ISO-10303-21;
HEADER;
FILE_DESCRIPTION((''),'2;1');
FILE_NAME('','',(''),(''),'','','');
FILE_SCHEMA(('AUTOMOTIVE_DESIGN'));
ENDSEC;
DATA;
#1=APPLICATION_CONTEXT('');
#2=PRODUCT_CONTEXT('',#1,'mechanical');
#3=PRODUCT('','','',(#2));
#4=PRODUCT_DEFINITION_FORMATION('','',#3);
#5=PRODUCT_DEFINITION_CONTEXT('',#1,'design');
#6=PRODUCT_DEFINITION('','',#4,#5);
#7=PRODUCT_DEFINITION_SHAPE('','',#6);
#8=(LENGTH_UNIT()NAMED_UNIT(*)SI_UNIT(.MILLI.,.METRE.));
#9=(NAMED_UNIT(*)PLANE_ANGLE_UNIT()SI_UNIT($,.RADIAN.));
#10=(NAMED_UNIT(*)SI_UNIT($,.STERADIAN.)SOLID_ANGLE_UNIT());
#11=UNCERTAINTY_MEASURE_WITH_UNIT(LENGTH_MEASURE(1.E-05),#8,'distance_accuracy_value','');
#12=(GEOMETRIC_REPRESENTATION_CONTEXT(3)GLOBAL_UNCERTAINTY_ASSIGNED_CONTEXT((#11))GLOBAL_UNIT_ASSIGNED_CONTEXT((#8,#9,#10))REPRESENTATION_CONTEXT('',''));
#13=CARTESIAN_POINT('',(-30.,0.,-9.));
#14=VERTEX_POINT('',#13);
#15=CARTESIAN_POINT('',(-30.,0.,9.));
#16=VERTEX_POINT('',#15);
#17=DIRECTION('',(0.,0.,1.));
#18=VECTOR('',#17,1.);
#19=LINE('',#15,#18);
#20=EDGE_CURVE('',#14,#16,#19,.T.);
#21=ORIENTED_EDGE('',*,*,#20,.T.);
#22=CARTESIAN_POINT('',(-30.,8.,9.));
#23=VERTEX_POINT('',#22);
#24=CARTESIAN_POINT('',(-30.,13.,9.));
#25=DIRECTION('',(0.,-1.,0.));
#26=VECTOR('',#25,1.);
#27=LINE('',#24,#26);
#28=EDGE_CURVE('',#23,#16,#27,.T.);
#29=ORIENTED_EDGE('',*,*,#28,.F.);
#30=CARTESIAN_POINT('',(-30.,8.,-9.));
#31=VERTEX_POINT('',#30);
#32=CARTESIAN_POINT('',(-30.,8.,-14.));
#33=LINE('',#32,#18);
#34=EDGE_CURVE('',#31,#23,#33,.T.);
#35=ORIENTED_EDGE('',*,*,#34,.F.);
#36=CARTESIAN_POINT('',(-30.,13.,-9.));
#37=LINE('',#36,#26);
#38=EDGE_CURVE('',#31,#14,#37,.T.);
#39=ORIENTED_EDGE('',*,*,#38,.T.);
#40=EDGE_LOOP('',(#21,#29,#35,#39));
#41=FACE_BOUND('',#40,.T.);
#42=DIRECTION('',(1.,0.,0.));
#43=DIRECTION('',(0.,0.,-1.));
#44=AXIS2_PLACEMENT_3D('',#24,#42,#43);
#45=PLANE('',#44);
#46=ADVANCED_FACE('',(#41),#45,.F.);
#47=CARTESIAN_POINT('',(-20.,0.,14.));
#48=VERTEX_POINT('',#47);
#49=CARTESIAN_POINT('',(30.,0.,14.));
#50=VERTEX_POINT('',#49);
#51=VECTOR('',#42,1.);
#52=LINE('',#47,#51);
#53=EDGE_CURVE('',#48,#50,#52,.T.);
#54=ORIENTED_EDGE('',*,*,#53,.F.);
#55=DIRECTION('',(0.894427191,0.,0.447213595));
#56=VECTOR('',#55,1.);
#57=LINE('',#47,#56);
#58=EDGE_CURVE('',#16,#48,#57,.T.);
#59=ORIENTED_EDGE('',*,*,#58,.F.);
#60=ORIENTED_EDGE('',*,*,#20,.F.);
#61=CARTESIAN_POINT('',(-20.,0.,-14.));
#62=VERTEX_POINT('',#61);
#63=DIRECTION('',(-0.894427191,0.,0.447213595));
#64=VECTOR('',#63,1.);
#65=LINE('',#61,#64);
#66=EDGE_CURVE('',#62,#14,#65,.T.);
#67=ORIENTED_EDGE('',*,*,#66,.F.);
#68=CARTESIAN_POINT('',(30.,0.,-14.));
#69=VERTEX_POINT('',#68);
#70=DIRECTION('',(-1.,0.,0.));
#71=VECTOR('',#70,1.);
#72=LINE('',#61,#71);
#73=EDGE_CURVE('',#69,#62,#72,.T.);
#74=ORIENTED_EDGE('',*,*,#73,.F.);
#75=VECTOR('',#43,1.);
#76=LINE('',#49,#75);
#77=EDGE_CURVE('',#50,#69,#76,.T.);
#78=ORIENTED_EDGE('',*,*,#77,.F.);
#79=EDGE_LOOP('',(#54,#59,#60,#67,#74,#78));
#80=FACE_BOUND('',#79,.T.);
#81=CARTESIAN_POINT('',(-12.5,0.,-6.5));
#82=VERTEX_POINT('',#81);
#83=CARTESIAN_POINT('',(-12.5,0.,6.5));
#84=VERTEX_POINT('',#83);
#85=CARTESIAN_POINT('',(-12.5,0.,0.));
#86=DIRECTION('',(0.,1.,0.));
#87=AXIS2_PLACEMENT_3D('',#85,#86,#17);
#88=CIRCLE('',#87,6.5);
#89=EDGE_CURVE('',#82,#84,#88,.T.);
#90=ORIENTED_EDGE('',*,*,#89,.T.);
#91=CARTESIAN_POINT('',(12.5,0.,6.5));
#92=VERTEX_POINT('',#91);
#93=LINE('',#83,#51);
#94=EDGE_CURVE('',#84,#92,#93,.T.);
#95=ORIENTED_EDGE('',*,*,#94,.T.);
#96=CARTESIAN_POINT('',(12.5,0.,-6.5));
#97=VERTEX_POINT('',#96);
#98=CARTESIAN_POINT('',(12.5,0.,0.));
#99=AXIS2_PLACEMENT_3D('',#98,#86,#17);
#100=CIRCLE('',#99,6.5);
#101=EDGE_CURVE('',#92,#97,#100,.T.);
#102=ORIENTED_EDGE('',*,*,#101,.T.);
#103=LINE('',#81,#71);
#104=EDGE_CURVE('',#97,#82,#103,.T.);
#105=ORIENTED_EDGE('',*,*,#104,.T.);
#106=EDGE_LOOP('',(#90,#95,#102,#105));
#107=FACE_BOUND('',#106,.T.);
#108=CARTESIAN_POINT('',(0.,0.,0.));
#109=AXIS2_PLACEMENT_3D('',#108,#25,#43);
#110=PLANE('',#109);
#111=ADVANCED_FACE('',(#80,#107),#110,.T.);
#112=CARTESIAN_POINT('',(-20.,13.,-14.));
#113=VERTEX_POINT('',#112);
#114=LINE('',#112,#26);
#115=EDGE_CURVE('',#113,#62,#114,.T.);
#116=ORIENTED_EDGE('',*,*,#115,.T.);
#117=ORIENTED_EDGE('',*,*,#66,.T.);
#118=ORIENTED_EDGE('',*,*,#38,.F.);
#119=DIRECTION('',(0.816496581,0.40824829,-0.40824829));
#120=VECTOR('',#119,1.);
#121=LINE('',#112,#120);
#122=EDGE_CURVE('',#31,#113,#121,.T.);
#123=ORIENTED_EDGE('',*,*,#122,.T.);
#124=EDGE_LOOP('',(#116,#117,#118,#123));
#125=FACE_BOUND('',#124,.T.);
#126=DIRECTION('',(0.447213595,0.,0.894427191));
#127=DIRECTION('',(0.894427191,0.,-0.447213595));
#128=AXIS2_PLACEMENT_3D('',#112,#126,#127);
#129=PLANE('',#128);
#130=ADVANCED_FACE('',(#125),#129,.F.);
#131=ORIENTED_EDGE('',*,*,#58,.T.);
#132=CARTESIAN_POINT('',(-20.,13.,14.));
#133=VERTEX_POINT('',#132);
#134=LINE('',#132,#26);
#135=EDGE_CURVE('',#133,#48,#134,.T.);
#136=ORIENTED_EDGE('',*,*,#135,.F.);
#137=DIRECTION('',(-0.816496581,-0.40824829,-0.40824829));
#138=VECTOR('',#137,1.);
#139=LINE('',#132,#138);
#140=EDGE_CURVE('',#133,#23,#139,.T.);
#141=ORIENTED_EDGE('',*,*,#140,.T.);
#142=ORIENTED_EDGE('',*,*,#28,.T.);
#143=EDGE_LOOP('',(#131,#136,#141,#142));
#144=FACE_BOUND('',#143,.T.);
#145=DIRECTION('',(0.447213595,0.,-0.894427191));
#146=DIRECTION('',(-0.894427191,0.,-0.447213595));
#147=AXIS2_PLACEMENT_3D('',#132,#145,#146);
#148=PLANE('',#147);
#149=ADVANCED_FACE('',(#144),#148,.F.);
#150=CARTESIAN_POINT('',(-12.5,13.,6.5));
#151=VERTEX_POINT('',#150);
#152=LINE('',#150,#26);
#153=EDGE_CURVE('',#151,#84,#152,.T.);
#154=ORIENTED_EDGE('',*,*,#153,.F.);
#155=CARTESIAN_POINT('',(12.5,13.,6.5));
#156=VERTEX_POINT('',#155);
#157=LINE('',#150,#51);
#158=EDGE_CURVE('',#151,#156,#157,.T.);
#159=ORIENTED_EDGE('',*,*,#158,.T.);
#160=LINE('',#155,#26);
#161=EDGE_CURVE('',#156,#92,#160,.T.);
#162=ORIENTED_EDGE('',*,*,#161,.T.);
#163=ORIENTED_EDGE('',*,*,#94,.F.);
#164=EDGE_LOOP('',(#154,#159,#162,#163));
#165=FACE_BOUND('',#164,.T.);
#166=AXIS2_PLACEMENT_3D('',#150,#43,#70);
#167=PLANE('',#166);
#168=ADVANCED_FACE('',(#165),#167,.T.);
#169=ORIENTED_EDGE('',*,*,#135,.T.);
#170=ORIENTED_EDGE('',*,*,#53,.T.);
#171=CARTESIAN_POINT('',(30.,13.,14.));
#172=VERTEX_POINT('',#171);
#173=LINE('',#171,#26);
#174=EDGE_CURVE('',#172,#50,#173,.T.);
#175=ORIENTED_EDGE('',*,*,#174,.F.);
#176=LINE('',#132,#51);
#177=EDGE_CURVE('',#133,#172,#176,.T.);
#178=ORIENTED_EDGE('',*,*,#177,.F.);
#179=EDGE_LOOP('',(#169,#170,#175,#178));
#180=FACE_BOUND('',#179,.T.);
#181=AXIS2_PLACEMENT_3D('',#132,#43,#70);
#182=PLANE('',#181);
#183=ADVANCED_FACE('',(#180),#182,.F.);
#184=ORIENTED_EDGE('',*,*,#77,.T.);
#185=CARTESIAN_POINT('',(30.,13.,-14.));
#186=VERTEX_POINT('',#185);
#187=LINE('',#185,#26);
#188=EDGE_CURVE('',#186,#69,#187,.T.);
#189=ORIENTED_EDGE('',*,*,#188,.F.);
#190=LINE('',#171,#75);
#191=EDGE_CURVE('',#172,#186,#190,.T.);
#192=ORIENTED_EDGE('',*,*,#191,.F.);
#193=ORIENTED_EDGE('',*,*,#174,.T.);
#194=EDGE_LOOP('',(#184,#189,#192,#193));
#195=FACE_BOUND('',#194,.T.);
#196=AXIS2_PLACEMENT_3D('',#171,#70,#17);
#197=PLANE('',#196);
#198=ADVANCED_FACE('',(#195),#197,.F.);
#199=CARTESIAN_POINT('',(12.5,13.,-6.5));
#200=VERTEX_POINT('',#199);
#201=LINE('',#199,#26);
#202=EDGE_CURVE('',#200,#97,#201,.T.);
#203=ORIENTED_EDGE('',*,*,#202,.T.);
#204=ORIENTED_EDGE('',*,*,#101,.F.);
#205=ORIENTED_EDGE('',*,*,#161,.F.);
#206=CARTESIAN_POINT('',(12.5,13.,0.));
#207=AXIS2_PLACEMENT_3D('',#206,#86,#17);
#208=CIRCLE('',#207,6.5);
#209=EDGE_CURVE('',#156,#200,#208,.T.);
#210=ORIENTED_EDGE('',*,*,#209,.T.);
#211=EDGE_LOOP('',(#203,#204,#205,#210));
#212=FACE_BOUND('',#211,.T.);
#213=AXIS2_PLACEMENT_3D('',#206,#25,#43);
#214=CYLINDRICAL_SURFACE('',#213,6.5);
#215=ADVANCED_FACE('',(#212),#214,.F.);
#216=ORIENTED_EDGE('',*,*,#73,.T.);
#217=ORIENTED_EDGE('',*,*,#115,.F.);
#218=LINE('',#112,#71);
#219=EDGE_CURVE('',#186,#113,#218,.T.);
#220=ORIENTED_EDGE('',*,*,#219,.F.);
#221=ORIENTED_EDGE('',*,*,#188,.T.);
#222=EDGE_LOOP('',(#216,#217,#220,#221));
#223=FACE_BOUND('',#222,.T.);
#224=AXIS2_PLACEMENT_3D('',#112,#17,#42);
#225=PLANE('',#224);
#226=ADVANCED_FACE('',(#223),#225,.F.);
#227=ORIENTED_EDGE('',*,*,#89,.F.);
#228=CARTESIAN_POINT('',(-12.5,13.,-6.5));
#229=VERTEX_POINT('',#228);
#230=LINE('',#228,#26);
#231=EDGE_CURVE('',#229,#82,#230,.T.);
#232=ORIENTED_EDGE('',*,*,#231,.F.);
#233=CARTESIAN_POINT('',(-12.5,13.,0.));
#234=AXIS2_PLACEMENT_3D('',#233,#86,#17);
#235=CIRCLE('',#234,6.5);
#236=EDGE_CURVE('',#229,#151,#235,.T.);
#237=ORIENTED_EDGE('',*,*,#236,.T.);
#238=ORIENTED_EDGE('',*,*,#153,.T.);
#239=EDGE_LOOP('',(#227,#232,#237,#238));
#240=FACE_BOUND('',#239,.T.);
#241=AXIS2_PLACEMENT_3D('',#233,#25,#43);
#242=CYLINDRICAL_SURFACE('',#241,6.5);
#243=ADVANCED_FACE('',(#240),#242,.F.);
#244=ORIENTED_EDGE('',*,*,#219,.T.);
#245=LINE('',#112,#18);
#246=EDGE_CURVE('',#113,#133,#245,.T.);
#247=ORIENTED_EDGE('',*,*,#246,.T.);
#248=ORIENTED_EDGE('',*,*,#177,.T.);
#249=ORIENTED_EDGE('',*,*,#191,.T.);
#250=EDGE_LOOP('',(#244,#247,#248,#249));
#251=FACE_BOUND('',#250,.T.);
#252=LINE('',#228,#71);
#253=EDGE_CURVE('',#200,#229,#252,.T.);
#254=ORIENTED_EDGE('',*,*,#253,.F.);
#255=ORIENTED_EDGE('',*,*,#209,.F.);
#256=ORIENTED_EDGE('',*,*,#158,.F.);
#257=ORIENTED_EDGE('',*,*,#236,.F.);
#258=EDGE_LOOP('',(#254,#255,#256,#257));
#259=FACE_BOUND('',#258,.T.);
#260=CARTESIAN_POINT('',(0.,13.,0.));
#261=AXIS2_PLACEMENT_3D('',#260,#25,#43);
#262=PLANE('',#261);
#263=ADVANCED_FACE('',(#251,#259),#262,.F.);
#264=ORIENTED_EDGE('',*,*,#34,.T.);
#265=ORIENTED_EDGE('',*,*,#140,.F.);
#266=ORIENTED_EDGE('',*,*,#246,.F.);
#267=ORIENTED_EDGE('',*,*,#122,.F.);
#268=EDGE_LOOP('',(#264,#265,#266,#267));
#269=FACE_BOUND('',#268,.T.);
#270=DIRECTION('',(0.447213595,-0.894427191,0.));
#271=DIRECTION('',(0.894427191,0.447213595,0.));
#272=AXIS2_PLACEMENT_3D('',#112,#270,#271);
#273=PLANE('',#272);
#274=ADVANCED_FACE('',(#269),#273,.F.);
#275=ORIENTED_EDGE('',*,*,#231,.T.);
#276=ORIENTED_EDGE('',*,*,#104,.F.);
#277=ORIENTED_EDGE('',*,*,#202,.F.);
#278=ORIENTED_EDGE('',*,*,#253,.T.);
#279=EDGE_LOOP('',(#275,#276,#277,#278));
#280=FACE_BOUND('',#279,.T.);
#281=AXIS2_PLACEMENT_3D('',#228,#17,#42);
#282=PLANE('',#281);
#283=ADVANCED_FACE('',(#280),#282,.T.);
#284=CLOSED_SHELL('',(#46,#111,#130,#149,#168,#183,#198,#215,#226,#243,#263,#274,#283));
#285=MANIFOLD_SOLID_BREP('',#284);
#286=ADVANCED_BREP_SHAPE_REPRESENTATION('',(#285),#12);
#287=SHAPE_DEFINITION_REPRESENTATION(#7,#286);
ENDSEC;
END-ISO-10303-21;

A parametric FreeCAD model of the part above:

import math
import FreeCAD as App
import Part
import Sketcher

V = App.Vector
Q = App.Units.Quantity


def add_polygon(sketch, points):
    """Adds a closed chain of lines whose ends are joined by coincident constraints."""
    first, n = sketch.GeometryCount, len(points)
    for a, b in zip(points, points[1:] + points[:1]):
        sketch.addGeometry(Part.LineSegment(App.Vector(*a, 0), App.Vector(*b, 0)), False)
    for i in range(n):
        sketch.addConstraint(Sketcher.Constraint("Coincident", first + i, 2, first + (i + 1) % n, 1))

doc = App.newDocument("Part")
params = doc.addObject("Spreadsheet::Sheet", "Params")
for row, (alias, value) in enumerate([
    ("sketch1_radius", "6.5 mm"),
    ("sketch1_width", "50 mm"),
    ("sketch1_width2", "25 mm"),
    ("sketch1_height", "28 mm"),
    ("sketch1_height2", "18 mm"),
    ("pad1_length", "13 mm"),
    ("sketch2_width", "10 mm"),
    ("sketch2_height", "5 mm"),
], start=1):
    params.set(f"A{row}", alias)
    params.set(f"B{row}", "=" + value)
    params.setAlias(f"B{row}", alias)

body = doc.addObject("PartDesign::Body", "Body")

sketch1 = body.newObject("Sketcher::SketchObject", "Sketch")
sketch1.AttachmentSupport = (doc.getObject("XZ_Plane"), [""])
sketch1.MapMode = "FlatFace"
add_polygon(sketch1, [(-20, 14), (30, 14), (30, -14), (-20, -14), (-30, -9), (-30, 9)])
sketch1.addGeometry(Part.ArcOfCircle(Part.Circle(V(-12.5, 0, 0), V(0, 0, 1), 6.5), math.radians(90), math.radians(270)), False)
sketch1.addGeometry(Part.LineSegment(V(-12.5, -6.5, 0), V(12.5, -6.5, 0)), False)
sketch1.addGeometry(Part.ArcOfCircle(Part.Circle(V(12.5, 0, 0), V(0, 0, 1), 6.5), math.radians(-90), math.radians(90)), False)
sketch1.addGeometry(Part.LineSegment(V(12.5, 6.5, 0), V(-12.5, 6.5, 0)), False)
sketch1.addConstraint(Sketcher.Constraint("Tangent", 6, 2, 7, 1))
sketch1.addConstraint(Sketcher.Constraint("Tangent", 7, 2, 8, 1))
sketch1.addConstraint(Sketcher.Constraint("Tangent", 8, 2, 9, 1))
sketch1.addConstraint(Sketcher.Constraint("Tangent", 9, 2, 6, 1))
sketch1.addConstraint(Sketcher.Constraint("Horizontal", 0))
sketch1.addConstraint(Sketcher.Constraint("Vertical", 1))
sketch1.addConstraint(Sketcher.Constraint("Horizontal", 2))
sketch1.addConstraint(Sketcher.Constraint("Vertical", 4))
sketch1.addConstraint(Sketcher.Constraint("Horizontal", 7))
sketch1.addConstraint(Sketcher.Constraint("Horizontal", 9))
sketch1.addConstraint(Sketcher.Constraint("Symmetric", 6, 3, 8, 3, -1, 1))
sketch1.addConstraint(Sketcher.Constraint("Symmetric", 2, 2, 5, 2, -1))
sketch1.addConstraint(Sketcher.Constraint("Equal", 3, 5))
sketch1.addConstraint(Sketcher.Constraint("Radius", 6, Q("6.5 mm")))
sketch1.addConstraint(Sketcher.Constraint("DistanceX", 0, 1, 0, 2, Q("50 mm")))
sketch1.addConstraint(Sketcher.Constraint("DistanceX", 7, 1, 7, 2, Q("25 mm")))
sketch1.addConstraint(Sketcher.Constraint("DistanceY", 1, 2, 1, 1, Q("28 mm")))
sketch1.addConstraint(Sketcher.Constraint("DistanceY", 4, 1, 4, 2, Q("18 mm")))
sketch1.addConstraint(Sketcher.Constraint("DistanceX", -1, 1, 0, 2, Q("30 mm")))
sketch1.addConstraint(Sketcher.Constraint("DistanceX", 3, 2, -1, 1, Q("30 mm")))
sketch1.setExpression("Constraints[19]", "Params.sketch1_radius")
sketch1.setExpression("Constraints[20]", "Params.sketch1_width")
sketch1.setExpression("Constraints[21]", "Params.sketch1_width2")
sketch1.setExpression("Constraints[22]", "Params.sketch1_height")
sketch1.setExpression("Constraints[23]", "Params.sketch1_height2")
pad1 = body.newObject("PartDesign::Pad", "Pad")
pad1.Profile = sketch1
pad1.setExpression("Length", "Params.pad1_length")
pad1.Reversed = True

sketch2 = body.newObject("Sketcher::SketchObject", "Sketch001")
sketch2.AttachmentSupport = (doc.getObject("XY_Plane"), [""])
sketch2.MapMode = "FlatFace"
sketch2.AttachmentOffset = App.Placement(V(0, 0, 14), App.Rotation())
add_polygon(sketch2, [(-20, 13), (-30, 13), (-30, 8)])
sketch2.addConstraint(Sketcher.Constraint("Horizontal", 0))
sketch2.addConstraint(Sketcher.Constraint("Vertical", 1))
sketch2.addConstraint(Sketcher.Constraint("DistanceX", 0, 2, 0, 1, Q("10 mm")))
sketch2.addConstraint(Sketcher.Constraint("DistanceY", 1, 2, 1, 1, Q("5 mm")))
sketch2.addConstraint(Sketcher.Constraint("DistanceX", 0, 2, -1, 1, Q("30 mm")))
sketch2.addConstraint(Sketcher.Constraint("DistanceY", -1, 1, 0, 2, Q("13 mm")))
sketch2.setExpression("Constraints[5]", "Params.sketch2_width")
sketch2.setExpression("Constraints[6]", "Params.sketch2_height")
pocket1 = body.newObject("PartDesign::Pocket", "Pocket")
pocket1.Profile = sketch2
pocket1.Type = "ThroughAll"

doc.recompute()
